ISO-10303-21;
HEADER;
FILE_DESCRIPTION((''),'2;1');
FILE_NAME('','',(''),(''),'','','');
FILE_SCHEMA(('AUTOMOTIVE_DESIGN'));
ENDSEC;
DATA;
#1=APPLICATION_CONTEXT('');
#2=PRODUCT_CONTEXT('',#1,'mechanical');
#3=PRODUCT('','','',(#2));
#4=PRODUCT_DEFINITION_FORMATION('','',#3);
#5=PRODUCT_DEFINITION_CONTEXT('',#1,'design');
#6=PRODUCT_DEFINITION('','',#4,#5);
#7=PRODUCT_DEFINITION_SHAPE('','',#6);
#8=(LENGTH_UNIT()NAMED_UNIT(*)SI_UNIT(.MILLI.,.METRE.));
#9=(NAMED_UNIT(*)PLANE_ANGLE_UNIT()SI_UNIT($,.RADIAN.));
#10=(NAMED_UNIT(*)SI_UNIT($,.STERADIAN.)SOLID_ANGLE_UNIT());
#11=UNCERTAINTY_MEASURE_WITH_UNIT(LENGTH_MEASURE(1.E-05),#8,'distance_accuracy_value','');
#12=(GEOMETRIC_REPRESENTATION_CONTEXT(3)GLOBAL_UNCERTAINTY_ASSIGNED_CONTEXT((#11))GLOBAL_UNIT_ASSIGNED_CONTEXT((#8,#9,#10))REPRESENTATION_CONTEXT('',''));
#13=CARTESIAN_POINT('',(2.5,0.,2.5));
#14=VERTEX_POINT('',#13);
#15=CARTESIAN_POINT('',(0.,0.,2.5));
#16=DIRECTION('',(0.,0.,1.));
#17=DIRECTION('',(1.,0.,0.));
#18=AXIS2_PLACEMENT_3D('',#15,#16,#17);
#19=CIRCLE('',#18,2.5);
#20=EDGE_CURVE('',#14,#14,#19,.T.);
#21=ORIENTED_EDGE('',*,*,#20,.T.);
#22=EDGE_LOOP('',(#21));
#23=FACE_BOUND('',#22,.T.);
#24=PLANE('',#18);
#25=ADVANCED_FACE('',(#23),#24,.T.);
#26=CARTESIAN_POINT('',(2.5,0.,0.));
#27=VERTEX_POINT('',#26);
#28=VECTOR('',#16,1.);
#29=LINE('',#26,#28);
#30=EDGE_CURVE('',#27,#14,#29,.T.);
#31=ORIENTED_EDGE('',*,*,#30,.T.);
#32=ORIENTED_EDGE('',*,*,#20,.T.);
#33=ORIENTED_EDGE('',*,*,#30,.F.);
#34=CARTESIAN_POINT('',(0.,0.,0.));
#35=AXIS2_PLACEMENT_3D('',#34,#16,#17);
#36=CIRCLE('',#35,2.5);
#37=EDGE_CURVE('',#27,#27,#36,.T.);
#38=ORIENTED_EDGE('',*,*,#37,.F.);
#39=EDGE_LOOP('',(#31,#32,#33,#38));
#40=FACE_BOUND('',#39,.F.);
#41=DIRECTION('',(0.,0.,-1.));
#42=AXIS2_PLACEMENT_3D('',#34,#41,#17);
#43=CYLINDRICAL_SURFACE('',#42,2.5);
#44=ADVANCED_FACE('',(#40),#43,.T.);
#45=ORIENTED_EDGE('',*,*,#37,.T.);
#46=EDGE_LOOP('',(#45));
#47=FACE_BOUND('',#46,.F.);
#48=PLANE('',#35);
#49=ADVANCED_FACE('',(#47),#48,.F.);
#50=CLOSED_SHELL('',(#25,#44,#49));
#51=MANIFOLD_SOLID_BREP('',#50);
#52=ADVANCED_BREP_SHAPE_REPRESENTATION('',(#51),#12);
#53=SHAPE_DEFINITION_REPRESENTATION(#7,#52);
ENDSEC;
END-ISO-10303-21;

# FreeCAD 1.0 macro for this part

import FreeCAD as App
import Part
import Sketcher
Q = App.Units.Quantity

doc = App.newDocument("Part")
params = doc.addObject("Spreadsheet::Sheet", "Params")
for row, (alias, value) in enumerate([
    ("sketch1_diameter", "5 mm"),
    ("pad1_length", "2.5 mm"),
], start=1):
    params.set(f"A{row}", alias)
    params.set(f"B{row}", "=" + value)
    params.setAlias(f"B{row}", alias)

body = doc.addObject("PartDesign::Body", "Body")

# Sketch on XY plane
sketch1 = body.newObject("Sketcher::SketchObject", "Sketch")
sketch1.AttachmentSupport = (doc.getObject("XY_Plane"), [""])
sketch1.MapMode = "FlatFace"
sketch1.addGeometry(Part.Circle(App.Vector(0, 0, 0), App.Vector(0, 0, 1), 2.5), False)
sketch1.addConstraint([
    Sketcher.Constraint("Coincident", 0, 3, -1, 1),
    Sketcher.Constraint("Diameter", 0, Q("5 mm")),
])
sketch1.setExpression("Constraints[1]", "Params.sketch1_diameter")
pad1 = body.newObject("PartDesign::Pad", "Pad")
pad1.Profile = sketch1
pad1.setExpression("Length", "Params.pad1_length")

doc.recompute()
